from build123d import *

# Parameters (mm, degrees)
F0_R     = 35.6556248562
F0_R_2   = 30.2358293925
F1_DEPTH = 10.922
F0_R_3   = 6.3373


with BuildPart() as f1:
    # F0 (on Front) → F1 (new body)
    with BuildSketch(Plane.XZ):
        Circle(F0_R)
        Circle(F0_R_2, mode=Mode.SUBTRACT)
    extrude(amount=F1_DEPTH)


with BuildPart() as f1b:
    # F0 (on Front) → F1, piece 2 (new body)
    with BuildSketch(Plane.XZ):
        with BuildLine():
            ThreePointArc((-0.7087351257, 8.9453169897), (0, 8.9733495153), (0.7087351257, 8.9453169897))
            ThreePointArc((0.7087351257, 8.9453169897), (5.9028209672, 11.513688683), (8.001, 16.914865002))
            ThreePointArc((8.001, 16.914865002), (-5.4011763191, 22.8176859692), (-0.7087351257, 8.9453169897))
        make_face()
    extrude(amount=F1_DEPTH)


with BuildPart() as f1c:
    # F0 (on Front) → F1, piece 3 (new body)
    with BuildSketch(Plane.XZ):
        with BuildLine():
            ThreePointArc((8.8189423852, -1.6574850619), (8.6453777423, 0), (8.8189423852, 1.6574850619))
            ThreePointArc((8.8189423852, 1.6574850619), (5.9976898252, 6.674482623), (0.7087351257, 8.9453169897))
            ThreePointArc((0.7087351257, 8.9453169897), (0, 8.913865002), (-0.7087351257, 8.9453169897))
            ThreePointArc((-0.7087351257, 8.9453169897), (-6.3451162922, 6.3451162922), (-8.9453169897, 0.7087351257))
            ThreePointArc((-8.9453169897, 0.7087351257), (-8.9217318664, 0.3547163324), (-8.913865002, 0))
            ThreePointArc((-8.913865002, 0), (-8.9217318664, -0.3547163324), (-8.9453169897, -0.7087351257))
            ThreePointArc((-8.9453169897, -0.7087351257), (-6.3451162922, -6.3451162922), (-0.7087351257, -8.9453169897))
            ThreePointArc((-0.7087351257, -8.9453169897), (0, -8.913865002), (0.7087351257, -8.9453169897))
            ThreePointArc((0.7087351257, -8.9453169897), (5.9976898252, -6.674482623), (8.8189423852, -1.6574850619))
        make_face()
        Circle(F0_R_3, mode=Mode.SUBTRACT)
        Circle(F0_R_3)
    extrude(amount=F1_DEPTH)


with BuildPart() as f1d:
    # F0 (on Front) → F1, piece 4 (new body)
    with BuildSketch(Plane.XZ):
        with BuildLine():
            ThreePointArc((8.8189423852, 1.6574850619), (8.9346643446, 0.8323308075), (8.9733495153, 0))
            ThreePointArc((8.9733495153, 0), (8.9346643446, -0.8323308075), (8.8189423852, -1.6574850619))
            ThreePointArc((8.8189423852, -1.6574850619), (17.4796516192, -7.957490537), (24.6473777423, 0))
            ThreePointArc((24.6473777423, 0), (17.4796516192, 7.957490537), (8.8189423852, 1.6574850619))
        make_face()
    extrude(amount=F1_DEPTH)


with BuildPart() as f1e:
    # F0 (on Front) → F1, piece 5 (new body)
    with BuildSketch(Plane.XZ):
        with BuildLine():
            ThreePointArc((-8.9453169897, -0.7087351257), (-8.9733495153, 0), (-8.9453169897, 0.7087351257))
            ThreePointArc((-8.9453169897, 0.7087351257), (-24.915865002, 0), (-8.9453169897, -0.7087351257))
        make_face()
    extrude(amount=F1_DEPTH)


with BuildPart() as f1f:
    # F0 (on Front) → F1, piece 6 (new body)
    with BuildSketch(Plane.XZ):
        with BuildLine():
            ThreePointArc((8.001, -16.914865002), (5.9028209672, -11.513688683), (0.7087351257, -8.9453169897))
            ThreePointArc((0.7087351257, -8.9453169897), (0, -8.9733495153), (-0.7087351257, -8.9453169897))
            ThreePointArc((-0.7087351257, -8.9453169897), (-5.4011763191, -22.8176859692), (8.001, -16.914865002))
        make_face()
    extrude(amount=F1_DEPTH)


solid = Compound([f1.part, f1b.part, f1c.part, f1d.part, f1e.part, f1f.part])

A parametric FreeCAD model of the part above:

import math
import FreeCAD as App
import Part
import Sketcher
from FreeCAD import Vector
Q = App.Units.Quantity

doc = App.newDocument("Part")
body = doc.addObject("PartDesign::Body", "Body")

sketch1 = body.newObject("Sketcher::SketchObject", "Sketch")
sketch1.AttachmentSupport = (doc.getObject("XZ_Plane"), [""])
sketch1.MapMode = "FlatFace"
sketch1.addGeometry([
    Part.Circle(Vector(0, 0, 0), Vector(0, 0, 1), 36),
    Part.Circle(Vector(0, 0, 0), Vector(0, 0, 1), 30),
], False)
sketch1.addConstraint([
    Sketcher.Constraint("Coincident", 0, 3, -1, 1),
    Sketcher.Constraint("Coincident", 1, 3, -1, 1),
    Sketcher.Constraint("Diameter", 0, 71.31125),
    Sketcher.Constraint("Diameter", 1, 60.471659),
])
pad1 = body.newObject("PartDesign::Pad", "Pad")
pad1.Profile = sketch1
pad1.Length = Q("0.43 in")
body2 = doc.addObject("PartDesign::Body", "Body001")

sketch2 = body2.newObject("Sketcher::SketchObject", "Sketch001")
sketch2.AttachmentSupport = (doc.getObject("XZ_Plane001"), [""])
sketch2.MapMode = "FlatFace"
sketch2.addGeometry([
    Part.ArcOfCircle(Part.Circle(Vector(0, 0, 0), Vector(0, 0, 1), 9), math.radians(85.47), math.radians(94.53)),
    Part.ArcOfCircle(Part.Circle(Vector(0, 16.9, 0), Vector(0, 0, 1), 8), math.radians(-85), math.radians(0)),
    Part.ArcOfCircle(Part.Circle(Vector(0, 16.9, 0), Vector(0, 0, 1), 8), math.radians(0), math.radians(265)),
], False)
sketch2.addConstraint([
    Sketcher.Constraint("Coincident", 0, 1, 1, 1),
    Sketcher.Constraint("Tangent", 1, 2, 2, 1),
    Sketcher.Constraint("Coincident", 2, 2, 0, 2),
    Sketcher.Constraint("Coincident", 0, 3, -1, 1),
    Sketcher.Constraint("Equal", 1, 2),
    Sketcher.Constraint("PointOnObject", 1, 3, -2),
    Sketcher.Constraint("Horizontal", 2, 3, 1, 2),
    Sketcher.Constraint("Radius", 1, Q("0.315 in")),
    Sketcher.Constraint("Radius", 0, 8.97335),
    Sketcher.Constraint("DistanceY", 0, 1, 1, 3, 7.969548),
])
pad2 = body2.newObject("PartDesign::Pad", "Pad001")
pad2.Profile = sketch2
pad2.Length = Q("0.43 in")
body3 = doc.addObject("PartDesign::Body", "Body002")

sketch3 = body3.newObject("Sketcher::SketchObject", "Sketch002")
sketch3.AttachmentSupport = (doc.getObject("XZ_Plane002"), [""])
sketch3.MapMode = "FlatFace"
sketch3.addGeometry([
    Part.ArcOfCircle(Part.Circle(Vector(16.6, 0, 0), Vector(0, 0, 1), 8), math.radians(168), math.radians(192)),
    Part.ArcOfCircle(Part.Circle(Vector(0, 0, 0), Vector(0, 0, 1), 9), math.radians(11), math.radians(85)),
    Part.ArcOfCircle(Part.Circle(Vector(0, 16.9, 0), Vector(0, 0, 1), 8), math.radians(-95.08), math.radians(-84.92)),
    Part.ArcOfCircle(Part.Circle(Vector(0, 0, 0), Vector(0, 0, 1), 9), math.radians(95), math.radians(175)),
    Part.ArcOfCircle(Part.Circle(Vector(-16.9, 0, 0), Vector(0, 0, 1), 8), math.radians(0), math.radians(5.08)),
    Part.ArcOfCircle(Part.Circle(Vector(-16.9, 0, 0), Vector(0, 0, 1), 8), math.radians(-5.08), math.radians(0)),
    Part.ArcOfCircle(Part.Circle(Vector(0, 0, 0), Vector(0, 0, 1), 9), math.radians(-175), math.radians(-95)),
    Part.ArcOfCircle(Part.Circle(Vector(0, -16.9, 0), Vector(0, 0, 1), 8), math.radians(84.92), math.radians(95.08)),
    Part.ArcOfCircle(Part.Circle(Vector(0, 0, 0), Vector(0, 0, 1), 9), math.radians(-85), math.radians(-11)),
], False)
sketch3.addConstraint([
    Sketcher.Constraint("Coincident", 0, 1, 1, 1),
    Sketcher.Constraint("Coincident", 1, 2, 2, 2),
    Sketcher.Constraint("Coincident", 2, 1, 3, 1),
    Sketcher.Constraint("Coincident", 3, 2, 4, 2),
    Sketcher.Constraint("Tangent", 4, 1, 5, 2),
    Sketcher.Constraint("Coincident", 5, 1, 6, 1),
    Sketcher.Constraint("Coincident", 6, 2, 7, 2),
    Sketcher.Constraint("Coincident", 7, 1, 8, 1),
    Sketcher.Constraint("Coincident", 8, 2, 0, 2),
    Sketcher.Constraint("Coincident", 1, 3, -1, 1),
    Sketcher.Constraint("Coincident", 3, 3, -1, 1),
    Sketcher.Constraint("Coincident", 6, 3, -1, 1),
    Sketcher.Constraint("Coincident", 8, 3, -1, 1),
    Sketcher.Constraint("Equal", 0, 2),
    Sketcher.Constraint("Equal", 1, 3),
    Sketcher.Constraint("Equal", 2, 4),
    Sketcher.Constraint("Equal", 4, 5),
    Sketcher.Constraint("Equal", 3, 6),
    Sketcher.Constraint("Equal", 5, 7),
    Sketcher.Constraint("Equal", 6, 8),
    Sketcher.Constraint("Symmetric", 2, 3, 7, 3, -1, 1),
    Sketcher.Constraint("PointOnObject", 0, 3, -1),
    Sketcher.Constraint("PointOnObject", 2, 3, -2),
    Sketcher.Constraint("PointOnObject", 4, 3, -1),
    Sketcher.Constraint("PointOnObject", 4, 1, -1),
    Sketcher.Constraint("Radius", 0, Q("0.315 in")),
    Sketcher.Constraint("Radius", 1, 8.97335),
    Sketcher.Constraint("DistanceX", 2, 1, 1, 2, 1.41747),
    Sketcher.Constraint("DistanceX", 3, 2, 4, 1, 0.031452),
    Sketcher.Constraint("DistanceY", 8, 2, 0, 1, 3.31497),
])
pad3 = body3.newObject("PartDesign::Pad", "Pad002")
pad3.Profile = sketch3
pad3.Length = Q("0.43 in")
body4 = doc.addObject("PartDesign::Body", "Body003")

sketch4 = body4.newObject("Sketcher::SketchObject", "Sketch003")
sketch4.AttachmentSupport = (doc.getObject("XZ_Plane003"), [""])
sketch4.MapMode = "FlatFace"
sketch4.addGeometry([
    Part.ArcOfCircle(Part.Circle(Vector(0, 0, 0), Vector(0, 0, 1), 9), math.radians(0), math.radians(10.64)),
    Part.ArcOfCircle(Part.Circle(Vector(0, 0, 0), Vector(0, 0, 1), 9), math.radians(-10.64), math.radians(0)),
    Part.ArcOfCircle(Part.Circle(Vector(16.6, 0, 0), Vector(0, 0, 1), 8), math.radians(-168), math.radians(0)),
    Part.ArcOfCircle(Part.Circle(Vector(16.6, 0, 0), Vector(0, 0, 1), 8), math.radians(0), math.radians(168)),
], False)
sketch4.addConstraint([
    Sketcher.Constraint("Tangent", 0, 1, 1, 2),
    Sketcher.Constraint("Coincident", 1, 1, 2, 1),
    Sketcher.Constraint("Tangent", 2, 2, 3, 1),
    Sketcher.Constraint("Coincident", 3, 2, 0, 2),
    Sketcher.Constraint("Coincident", 0, 3, -1, 1),
    Sketcher.Constraint("Equal", 0, 1),
    Sketcher.Constraint("Equal", 2, 3),
    Sketcher.Constraint("PointOnObject", 2, 3, -1),
    Sketcher.Constraint("PointOnObject", 0, 1, -1),
    Sketcher.Constraint("PointOnObject", 2, 2, -1),
    Sketcher.Constraint("Radius", 2, Q("0.315 in")),
    Sketcher.Constraint("Radius", 0, 8.97335),
    Sketcher.Constraint("DistanceX", 0, 1, 2, 3, 7.673028),
])
pad4 = body4.newObject("PartDesign::Pad", "Pad003")
pad4.Profile = sketch4
pad4.Length = Q("0.43 in")
body5 = doc.addObject("PartDesign::Body", "Body004")

sketch5 = body5.newObject("Sketcher::SketchObject", "Sketch004")
sketch5.AttachmentSupport = (doc.getObject("XZ_Plane004"), [""])
sketch5.MapMode = "FlatFace"
sketch5.addGeometry([
    Part.ArcOfCircle(Part.Circle(Vector(0, 0, 0), Vector(0, 0, 1), 9), math.radians(175.47), math.radians(184.53)),
    Part.ArcOfCircle(Part.Circle(Vector(-16.9, 0, 0), Vector(0, 0, 1), 8), math.radians(5), math.radians(355)),
], False)
sketch5.addConstraint([
    Sketcher.Constraint("Coincident", 0, 1, 1, 1),
    Sketcher.Constraint("Coincident", 1, 2, 0, 2),
    Sketcher.Constraint("Coincident", 0, 3, -1, 1),
    Sketcher.Constraint("PointOnObject", 1, 3, -1),
    Sketcher.Constraint("Radius", 1, Q("0.315 in")),
    Sketcher.Constraint("Radius", 0, 8.97335),
    Sketcher.Constraint("DistanceX", 1, 3, 0, 1, 7.969548),
])
pad5 = body5.newObject("PartDesign::Pad", "Pad004")
pad5.Profile = sketch5
pad5.Length = Q("0.43 in")
body6 = doc.addObject("PartDesign::Body", "Body005")

sketch6 = body6.newObject("Sketcher::SketchObject", "Sketch005")
sketch6.AttachmentSupport = (doc.getObject("XZ_Plane005"), [""])
sketch6.MapMode = "FlatFace"
sketch6.addGeometry([
    Part.ArcOfCircle(Part.Circle(Vector(0, -16.9, 0), Vector(0, 0, 1), 8), math.radians(0), math.radians(85)),
    Part.ArcOfCircle(Part.Circle(Vector(0, 0, 0), Vector(0, 0, 1), 9), math.radians(-94.53), math.radians(-85.47)),
    Part.ArcOfCircle(Part.Circle(Vector(0, -16.9, 0), Vector(0, 0, 1), 8), math.radians(95), math.radians(360)),
], False)
sketch6.addConstraint([
    Sketcher.Constraint("Coincident", 0, 2, 1, 2),
    Sketcher.Constraint("Coincident", 1, 1, 2, 1),
    Sketcher.Constraint("Tangent", 2, 2, 0, 1),
    Sketcher.Constraint("Coincident", 1, 3, -1, 1),
    Sketcher.Constraint("Equal", 0, 2),
    Sketcher.Constraint("PointOnObject", 0, 3, -2),
    Sketcher.Constraint("Horizontal", 0, 3, 2, 2),
    Sketcher.Constraint("Radius", 0, Q("0.315 in")),
    Sketcher.Constraint("Radius", 1, 8.97335),
    Sketcher.Constraint("DistanceY", 0, 3, 0, 2, 7.969548),
])
pad6 = body6.newObject("PartDesign::Pad", "Pad005")
pad6.Profile = sketch6
pad6.Length = Q("0.43 in")

doc.recompute()
